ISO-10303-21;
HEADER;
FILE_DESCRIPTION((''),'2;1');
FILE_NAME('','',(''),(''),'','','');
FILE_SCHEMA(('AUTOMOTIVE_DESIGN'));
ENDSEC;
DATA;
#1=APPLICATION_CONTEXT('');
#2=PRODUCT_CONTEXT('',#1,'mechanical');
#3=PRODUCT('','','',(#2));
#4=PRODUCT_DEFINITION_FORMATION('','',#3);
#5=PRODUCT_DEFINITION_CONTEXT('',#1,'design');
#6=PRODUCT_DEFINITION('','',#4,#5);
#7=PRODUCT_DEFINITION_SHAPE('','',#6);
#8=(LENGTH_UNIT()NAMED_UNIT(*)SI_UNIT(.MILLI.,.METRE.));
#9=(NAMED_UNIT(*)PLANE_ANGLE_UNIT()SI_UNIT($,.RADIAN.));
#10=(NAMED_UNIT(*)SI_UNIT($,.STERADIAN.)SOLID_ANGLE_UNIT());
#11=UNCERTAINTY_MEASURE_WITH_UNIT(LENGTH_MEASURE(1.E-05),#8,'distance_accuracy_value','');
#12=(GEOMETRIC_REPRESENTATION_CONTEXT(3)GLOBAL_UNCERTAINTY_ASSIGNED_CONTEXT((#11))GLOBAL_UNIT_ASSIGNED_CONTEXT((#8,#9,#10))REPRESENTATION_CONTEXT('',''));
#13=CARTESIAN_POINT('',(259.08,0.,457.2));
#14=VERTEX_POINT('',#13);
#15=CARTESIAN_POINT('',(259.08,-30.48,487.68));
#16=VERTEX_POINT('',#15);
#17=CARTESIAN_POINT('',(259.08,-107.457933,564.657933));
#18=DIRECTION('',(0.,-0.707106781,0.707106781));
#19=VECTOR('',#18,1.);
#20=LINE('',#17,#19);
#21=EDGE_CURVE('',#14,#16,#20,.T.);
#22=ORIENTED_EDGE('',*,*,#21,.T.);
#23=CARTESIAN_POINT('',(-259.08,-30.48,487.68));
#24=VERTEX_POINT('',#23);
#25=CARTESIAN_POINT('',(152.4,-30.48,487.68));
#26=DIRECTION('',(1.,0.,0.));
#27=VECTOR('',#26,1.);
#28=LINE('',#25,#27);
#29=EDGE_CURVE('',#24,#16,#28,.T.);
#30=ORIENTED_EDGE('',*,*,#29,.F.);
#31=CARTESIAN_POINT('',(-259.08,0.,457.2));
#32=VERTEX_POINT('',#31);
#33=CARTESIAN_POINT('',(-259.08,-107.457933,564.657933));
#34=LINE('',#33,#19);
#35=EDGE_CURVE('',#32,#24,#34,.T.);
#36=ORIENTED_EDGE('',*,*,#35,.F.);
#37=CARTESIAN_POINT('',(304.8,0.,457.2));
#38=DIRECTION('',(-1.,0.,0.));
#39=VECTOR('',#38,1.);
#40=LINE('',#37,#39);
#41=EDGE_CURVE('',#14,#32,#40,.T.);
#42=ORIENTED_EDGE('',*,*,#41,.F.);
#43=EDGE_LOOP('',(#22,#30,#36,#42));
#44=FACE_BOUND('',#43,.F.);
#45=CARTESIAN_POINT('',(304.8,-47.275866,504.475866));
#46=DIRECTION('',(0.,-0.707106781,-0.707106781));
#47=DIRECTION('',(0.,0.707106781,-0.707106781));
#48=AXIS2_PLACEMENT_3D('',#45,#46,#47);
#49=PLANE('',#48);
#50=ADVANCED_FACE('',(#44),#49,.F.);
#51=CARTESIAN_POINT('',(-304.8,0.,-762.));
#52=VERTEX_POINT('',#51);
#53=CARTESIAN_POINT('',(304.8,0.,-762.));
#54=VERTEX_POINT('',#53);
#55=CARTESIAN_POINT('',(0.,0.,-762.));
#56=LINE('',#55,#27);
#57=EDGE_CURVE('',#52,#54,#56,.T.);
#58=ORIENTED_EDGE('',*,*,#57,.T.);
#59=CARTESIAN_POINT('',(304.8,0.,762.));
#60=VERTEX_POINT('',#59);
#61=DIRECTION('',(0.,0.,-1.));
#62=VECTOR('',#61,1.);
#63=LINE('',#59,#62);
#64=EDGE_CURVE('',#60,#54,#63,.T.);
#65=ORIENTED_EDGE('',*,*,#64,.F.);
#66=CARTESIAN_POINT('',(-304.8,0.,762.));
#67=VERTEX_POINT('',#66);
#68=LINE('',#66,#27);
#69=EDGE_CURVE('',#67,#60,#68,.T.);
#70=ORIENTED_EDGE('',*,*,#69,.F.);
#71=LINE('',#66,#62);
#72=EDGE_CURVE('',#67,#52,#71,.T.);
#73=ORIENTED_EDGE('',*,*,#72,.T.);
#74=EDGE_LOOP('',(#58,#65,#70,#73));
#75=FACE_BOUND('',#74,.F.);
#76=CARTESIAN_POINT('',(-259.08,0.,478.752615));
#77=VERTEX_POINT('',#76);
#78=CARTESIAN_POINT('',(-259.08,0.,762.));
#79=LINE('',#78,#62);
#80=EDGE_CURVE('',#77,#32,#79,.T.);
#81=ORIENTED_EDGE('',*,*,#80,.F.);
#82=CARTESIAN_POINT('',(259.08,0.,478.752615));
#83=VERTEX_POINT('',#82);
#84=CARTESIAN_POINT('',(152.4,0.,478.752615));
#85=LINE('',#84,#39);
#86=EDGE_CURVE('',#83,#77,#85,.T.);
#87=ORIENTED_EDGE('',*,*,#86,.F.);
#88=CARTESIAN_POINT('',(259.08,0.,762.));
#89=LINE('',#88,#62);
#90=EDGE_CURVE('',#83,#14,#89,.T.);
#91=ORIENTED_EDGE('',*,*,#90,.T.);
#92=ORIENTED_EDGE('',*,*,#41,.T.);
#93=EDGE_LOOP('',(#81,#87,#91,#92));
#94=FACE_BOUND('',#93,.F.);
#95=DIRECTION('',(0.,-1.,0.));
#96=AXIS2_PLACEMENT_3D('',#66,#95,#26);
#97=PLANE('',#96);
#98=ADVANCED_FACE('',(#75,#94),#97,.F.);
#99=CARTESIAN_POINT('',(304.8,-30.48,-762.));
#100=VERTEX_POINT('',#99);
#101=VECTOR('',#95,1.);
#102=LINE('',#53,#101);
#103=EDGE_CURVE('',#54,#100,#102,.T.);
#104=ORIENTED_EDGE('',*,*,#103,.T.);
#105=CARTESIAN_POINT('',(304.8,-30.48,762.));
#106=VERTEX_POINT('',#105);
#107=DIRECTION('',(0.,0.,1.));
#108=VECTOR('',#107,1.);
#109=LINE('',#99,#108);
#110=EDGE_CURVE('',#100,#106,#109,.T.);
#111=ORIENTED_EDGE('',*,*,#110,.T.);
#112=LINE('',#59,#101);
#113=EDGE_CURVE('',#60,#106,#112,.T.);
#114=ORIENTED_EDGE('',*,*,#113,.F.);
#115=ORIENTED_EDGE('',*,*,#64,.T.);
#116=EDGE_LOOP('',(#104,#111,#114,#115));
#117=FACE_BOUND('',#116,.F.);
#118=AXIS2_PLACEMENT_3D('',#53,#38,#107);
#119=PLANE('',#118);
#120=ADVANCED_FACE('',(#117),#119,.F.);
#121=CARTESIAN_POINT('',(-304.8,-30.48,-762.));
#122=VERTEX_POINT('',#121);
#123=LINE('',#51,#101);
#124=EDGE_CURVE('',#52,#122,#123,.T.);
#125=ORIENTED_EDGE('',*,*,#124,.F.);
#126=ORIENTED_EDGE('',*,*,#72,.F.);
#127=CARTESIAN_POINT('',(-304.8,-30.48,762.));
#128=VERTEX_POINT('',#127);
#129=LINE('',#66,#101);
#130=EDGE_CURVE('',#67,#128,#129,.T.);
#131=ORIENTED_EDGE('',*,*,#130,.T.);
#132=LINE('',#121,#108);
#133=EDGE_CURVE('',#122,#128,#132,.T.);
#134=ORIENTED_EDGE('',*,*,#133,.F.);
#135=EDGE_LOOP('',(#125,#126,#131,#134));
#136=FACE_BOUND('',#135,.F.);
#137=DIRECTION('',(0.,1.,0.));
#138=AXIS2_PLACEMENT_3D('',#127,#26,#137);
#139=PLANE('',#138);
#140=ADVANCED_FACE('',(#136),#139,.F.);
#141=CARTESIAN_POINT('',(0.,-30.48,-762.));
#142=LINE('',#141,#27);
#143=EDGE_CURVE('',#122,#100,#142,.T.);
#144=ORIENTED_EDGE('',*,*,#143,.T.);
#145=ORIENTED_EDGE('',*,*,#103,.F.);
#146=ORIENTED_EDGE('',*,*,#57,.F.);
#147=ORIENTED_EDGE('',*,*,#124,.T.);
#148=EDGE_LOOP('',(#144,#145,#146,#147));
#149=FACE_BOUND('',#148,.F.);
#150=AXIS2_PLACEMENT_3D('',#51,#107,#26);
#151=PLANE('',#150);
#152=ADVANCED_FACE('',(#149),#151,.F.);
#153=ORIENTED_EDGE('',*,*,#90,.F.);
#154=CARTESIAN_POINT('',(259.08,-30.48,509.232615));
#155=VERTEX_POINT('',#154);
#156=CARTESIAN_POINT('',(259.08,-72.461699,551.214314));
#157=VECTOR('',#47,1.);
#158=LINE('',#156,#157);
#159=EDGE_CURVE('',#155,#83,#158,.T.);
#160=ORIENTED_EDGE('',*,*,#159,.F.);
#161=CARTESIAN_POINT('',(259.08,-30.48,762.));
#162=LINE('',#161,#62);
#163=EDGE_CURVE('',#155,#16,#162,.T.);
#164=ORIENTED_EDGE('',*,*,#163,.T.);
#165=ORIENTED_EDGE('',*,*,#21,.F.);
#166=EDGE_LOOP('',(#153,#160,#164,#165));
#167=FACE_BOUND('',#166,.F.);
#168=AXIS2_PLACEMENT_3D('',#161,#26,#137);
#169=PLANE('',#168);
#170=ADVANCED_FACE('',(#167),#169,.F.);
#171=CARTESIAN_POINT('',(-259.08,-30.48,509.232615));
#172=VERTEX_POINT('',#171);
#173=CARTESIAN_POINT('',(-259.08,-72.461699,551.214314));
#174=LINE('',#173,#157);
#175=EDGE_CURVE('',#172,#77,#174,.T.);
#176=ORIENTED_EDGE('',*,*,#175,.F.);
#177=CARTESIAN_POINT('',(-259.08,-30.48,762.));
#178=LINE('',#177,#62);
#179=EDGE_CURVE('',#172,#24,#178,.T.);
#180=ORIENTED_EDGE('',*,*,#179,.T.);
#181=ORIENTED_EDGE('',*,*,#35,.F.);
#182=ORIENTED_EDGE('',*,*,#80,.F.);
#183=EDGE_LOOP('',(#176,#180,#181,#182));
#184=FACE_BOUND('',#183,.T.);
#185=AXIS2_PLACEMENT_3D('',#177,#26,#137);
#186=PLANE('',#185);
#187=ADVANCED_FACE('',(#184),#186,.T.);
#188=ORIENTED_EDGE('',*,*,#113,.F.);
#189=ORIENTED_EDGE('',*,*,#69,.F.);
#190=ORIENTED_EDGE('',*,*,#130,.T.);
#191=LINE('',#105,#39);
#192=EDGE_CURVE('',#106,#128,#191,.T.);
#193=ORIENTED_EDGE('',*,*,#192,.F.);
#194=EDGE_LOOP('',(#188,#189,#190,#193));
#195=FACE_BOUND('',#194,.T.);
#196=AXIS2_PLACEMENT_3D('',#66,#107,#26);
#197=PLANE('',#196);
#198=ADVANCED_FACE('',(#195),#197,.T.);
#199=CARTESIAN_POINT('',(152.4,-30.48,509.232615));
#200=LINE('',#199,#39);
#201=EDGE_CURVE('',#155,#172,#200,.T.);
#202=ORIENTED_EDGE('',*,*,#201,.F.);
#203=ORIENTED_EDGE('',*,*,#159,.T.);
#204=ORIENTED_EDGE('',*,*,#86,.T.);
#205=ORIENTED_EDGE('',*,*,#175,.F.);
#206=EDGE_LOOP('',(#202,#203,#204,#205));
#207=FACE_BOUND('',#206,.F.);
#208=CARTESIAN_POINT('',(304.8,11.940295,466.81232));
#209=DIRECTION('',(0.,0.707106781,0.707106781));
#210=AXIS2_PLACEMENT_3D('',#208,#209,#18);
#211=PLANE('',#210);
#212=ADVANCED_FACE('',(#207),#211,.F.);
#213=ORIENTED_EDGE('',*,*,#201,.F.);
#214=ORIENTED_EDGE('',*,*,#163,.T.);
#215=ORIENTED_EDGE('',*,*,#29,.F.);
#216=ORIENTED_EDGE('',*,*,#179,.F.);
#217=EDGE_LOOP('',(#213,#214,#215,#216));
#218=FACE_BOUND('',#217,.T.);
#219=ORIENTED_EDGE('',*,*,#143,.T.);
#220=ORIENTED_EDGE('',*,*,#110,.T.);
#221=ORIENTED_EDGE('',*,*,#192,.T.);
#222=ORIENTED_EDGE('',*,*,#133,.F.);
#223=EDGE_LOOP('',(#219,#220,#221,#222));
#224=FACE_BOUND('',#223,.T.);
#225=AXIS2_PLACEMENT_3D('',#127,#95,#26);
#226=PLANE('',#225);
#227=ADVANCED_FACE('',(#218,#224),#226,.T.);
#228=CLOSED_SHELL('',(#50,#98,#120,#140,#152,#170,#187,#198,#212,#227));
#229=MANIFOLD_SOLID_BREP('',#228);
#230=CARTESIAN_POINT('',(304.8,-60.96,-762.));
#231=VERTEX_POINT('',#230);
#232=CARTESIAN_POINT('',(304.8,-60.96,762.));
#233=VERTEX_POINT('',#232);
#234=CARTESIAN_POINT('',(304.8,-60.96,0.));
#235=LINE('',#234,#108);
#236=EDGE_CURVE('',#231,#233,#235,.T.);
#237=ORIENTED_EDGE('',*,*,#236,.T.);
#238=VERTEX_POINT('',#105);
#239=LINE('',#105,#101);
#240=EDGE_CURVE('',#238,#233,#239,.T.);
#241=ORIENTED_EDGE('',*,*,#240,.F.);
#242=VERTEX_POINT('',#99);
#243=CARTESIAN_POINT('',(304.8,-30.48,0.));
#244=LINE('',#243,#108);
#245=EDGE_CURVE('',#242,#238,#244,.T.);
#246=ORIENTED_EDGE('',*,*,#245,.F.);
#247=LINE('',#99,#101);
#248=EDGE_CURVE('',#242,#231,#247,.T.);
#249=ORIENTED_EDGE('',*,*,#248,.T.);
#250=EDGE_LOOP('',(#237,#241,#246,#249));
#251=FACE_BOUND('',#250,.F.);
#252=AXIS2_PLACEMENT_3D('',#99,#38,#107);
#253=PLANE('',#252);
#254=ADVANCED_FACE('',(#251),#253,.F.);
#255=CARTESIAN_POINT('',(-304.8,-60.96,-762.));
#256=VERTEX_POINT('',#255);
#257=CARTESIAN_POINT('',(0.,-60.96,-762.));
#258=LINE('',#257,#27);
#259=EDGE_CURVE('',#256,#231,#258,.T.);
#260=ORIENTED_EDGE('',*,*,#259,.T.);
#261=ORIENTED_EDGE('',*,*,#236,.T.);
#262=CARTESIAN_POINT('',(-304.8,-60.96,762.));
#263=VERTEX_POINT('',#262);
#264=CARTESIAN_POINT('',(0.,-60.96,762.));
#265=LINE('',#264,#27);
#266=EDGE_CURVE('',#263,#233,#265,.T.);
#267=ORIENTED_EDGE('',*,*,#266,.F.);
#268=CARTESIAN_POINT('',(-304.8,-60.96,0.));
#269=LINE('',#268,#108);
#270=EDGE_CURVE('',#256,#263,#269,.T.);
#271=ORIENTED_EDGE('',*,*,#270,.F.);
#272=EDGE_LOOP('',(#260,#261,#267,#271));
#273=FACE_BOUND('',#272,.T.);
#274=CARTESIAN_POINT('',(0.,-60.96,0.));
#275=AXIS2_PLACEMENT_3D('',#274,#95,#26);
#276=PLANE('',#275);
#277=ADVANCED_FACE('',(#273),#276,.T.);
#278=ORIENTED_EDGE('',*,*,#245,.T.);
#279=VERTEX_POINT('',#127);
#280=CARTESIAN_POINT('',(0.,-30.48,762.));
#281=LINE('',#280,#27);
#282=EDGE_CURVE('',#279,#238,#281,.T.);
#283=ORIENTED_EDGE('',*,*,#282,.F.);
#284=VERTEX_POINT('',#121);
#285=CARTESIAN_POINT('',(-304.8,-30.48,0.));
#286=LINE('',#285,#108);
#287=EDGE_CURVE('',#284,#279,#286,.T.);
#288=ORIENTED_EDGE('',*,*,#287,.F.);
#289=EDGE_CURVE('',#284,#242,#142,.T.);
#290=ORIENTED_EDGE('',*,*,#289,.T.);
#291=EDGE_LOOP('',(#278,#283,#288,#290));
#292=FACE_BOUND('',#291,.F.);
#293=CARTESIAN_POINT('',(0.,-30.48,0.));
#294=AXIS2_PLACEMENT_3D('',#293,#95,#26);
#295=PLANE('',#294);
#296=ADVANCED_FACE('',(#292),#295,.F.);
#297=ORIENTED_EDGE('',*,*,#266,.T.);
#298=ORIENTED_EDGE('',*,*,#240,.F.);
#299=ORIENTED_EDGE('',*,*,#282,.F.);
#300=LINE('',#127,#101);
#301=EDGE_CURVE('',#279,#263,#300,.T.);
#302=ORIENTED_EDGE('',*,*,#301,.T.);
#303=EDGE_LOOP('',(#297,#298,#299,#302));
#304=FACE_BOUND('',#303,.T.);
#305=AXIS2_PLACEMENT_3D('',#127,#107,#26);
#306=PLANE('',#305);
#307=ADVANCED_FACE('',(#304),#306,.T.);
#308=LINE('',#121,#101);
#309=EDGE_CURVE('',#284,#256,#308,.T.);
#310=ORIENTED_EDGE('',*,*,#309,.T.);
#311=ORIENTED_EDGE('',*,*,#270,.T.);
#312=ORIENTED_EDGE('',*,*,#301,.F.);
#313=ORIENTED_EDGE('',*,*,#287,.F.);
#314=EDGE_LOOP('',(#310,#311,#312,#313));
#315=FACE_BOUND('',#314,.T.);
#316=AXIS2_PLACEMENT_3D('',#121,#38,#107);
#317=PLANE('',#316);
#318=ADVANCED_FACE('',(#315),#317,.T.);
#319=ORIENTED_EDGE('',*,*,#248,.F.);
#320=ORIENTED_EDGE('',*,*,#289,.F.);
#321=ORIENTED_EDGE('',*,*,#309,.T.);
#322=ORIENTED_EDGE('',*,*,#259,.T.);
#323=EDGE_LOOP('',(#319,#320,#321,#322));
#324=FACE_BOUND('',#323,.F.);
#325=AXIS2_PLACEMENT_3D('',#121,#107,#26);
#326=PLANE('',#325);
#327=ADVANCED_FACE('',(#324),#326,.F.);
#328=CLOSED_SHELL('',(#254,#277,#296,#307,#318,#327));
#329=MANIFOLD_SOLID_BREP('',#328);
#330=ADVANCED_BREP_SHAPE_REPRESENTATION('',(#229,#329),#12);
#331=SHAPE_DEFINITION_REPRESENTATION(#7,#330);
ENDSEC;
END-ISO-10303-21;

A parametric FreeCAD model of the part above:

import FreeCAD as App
import Part
import Sketcher
from FreeCAD import Vector
Q = App.Units.Quantity


def add_polygon(sketch, points):
    """Adds a closed chain of lines whose ends are joined by coincident constraints."""
    first, n = sketch.GeometryCount, len(points)
    for a, b in zip(points, points[1:] + points[:1]):
        sketch.addGeometry(Part.LineSegment(App.Vector(*a, 0), App.Vector(*b, 0)), False)
    for i in range(n):
        sketch.addConstraint(Sketcher.Constraint("Coincident", first + i, 2, first + (i + 1) % n, 1))

doc = App.newDocument("Part")
body = doc.addObject("PartDesign::Body", "Body")
body.AllowCompound = True

sketch1 = body.newObject("Sketcher::SketchObject", "Sketch")
sketch1.AttachmentSupport = (doc.getObject("XZ_Plane"), [""])
sketch1.MapMode = "FlatFace"
add_polygon(sketch1, [(-305, 762), (-305, -762), (305, -762), (305, 762)])
sketch1.addConstraint(Sketcher.Constraint("Vertical", 0))
sketch1.addConstraint(Sketcher.Constraint("Horizontal", 1))
sketch1.addConstraint(Sketcher.Constraint("Vertical", 2))
sketch1.addConstraint(Sketcher.Constraint("Horizontal", 3))
sketch1.addConstraint(Sketcher.Constraint("Symmetric", 0, 2, 2, 2, -1, 1))
sketch1.addConstraint(Sketcher.Constraint("DistanceX", 1, 1, 1, 2, Q("24 in")))
sketch1.addConstraint(Sketcher.Constraint("DistanceY", 0, 2, 0, 1, Q("60 in")))
pad1 = body.newObject("PartDesign::Pad", "Pad")
pad1.Profile = sketch1
pad1.Length = Q("1.2 in")

sketch2 = body.newObject("Sketcher::SketchObject", "Sketch001")
sketch2.AttachmentSupport = (doc.getObject("YZ_Plane"), [""])
sketch2.MapMode = "FlatFace"
sketch2.AttachmentOffset = App.Placement(Vector(0, 0, 12 * 25.4), App.Rotation())
add_polygon(sketch2, [(0, 457), (12, 467), (-36, 515), (-47, 504)])
sketch2.addConstraint(Sketcher.Constraint("PointOnObject", 3, 2, -2))
sketch2.addConstraint(Sketcher.Constraint("Perpendicular", 1, 2))
sketch2.addConstraint(Sketcher.Constraint("Perpendicular", 2, 3))
sketch2.addConstraint(Sketcher.Constraint("DistanceY", -1, 1, 3, 2, Q("18 in")))
sketch2.addConstraint(Sketcher.Constraint("Angle", 1, Q("135 deg")))
sketch2.addConstraint(Sketcher.Constraint("Distance", 2, Q("0.6 in")))
sketch2.addConstraint(Sketcher.Constraint("Distance", 1, Q("68.504298 mm")))
sketch2.addConstraint(Sketcher.Constraint("Distance", 3, Q("66.858171 mm")))
pocket1 = body.newObject("PartDesign::Pocket", "Pocket")
pocket1.Profile = sketch2
pocket1.Length = Q("24 in")

sketch3 = body.newObject("Sketcher::SketchObject", "Sketch002")
sketch3.AttachmentSupport = (doc.getObject("XY_Plane"), [""])
sketch3.MapMode = "FlatFace"
sketch3.AttachmentOffset = App.Placement(Vector(0, 0, 30 * 25.4), App.Rotation())
add_polygon(sketch3, [(-305, 0), (-305, -30), (-259, -30), (-259, 0)])
add_polygon(sketch3, [(259, 0), (259, -30), (305, -30), (305, 0)])
sketch3.addConstraint(Sketcher.Constraint("Vertical", 0))
sketch3.addConstraint(Sketcher.Constraint("Horizontal", 1))
sketch3.addConstraint(Sketcher.Constraint("Vertical", 2))
sketch3.addConstraint(Sketcher.Constraint("Horizontal", 3))
sketch3.addConstraint(Sketcher.Constraint("Vertical", 4))
sketch3.addConstraint(Sketcher.Constraint("Horizontal", 5))
sketch3.addConstraint(Sketcher.Constraint("Vertical", 6))
sketch3.addConstraint(Sketcher.Constraint("Horizontal", 7))
sketch3.addConstraint(Sketcher.Constraint("Symmetric", 3, 2, 6, 2, -1, 1))
sketch3.addConstraint(Sketcher.Constraint("Symmetric", 1, 2, 4, 2, -2))
sketch3.addConstraint(Sketcher.Constraint("PointOnObject", 2, 2, -1))
sketch3.addConstraint(Sketcher.Constraint("DistanceX", 1, 1, 1, 2, Q("1.8 in")))
sketch3.addConstraint(Sketcher.Constraint("DistanceY", 0, 2, 0, 1, Q("1.2 in")))
sketch3.addConstraint(Sketcher.Constraint("DistanceX", 0, 2, -1, 1, Q("12 in")))
pad2 = body.newObject("PartDesign::Pad", "Pad001")
pad2.Profile = sketch3
pad2.Length = Q("24 in")
pad2.Reversed = True
body2 = doc.addObject("PartDesign::Body", "Body001")

sketch4 = body2.newObject("Sketcher::SketchObject", "Sketch003")
sketch4.AttachmentSupport = (doc.getObject("XZ_Plane001"), [""])
sketch4.MapMode = "FlatFace"
sketch4.AttachmentOffset = App.Placement(Vector(0, 0, 1.2 * 25.4), App.Rotation())
add_polygon(sketch4, [(-305, 762), (-305, -762), (305, -762), (305, 762)])
sketch4.addConstraint(Sketcher.Constraint("Vertical", 0))
sketch4.addConstraint(Sketcher.Constraint("Horizontal", 1))
sketch4.addConstraint(Sketcher.Constraint("Vertical", 2))
sketch4.addConstraint(Sketcher.Constraint("Horizontal", 3))
sketch4.addConstraint(Sketcher.Constraint("Symmetric", 0, 2, 2, 2, -1, 1))
sketch4.addConstraint(Sketcher.Constraint("DistanceX", 1, 1, 1, 2, Q("24 in")))
sketch4.addConstraint(Sketcher.Constraint("DistanceY", 0, 2, 0, 1, Q("60 in")))
pad3 = body2.newObject("PartDesign::Pad", "Pad002")
pad3.Profile = sketch4
pad3.Length = Q("1.2 in")

doc.recompute()
